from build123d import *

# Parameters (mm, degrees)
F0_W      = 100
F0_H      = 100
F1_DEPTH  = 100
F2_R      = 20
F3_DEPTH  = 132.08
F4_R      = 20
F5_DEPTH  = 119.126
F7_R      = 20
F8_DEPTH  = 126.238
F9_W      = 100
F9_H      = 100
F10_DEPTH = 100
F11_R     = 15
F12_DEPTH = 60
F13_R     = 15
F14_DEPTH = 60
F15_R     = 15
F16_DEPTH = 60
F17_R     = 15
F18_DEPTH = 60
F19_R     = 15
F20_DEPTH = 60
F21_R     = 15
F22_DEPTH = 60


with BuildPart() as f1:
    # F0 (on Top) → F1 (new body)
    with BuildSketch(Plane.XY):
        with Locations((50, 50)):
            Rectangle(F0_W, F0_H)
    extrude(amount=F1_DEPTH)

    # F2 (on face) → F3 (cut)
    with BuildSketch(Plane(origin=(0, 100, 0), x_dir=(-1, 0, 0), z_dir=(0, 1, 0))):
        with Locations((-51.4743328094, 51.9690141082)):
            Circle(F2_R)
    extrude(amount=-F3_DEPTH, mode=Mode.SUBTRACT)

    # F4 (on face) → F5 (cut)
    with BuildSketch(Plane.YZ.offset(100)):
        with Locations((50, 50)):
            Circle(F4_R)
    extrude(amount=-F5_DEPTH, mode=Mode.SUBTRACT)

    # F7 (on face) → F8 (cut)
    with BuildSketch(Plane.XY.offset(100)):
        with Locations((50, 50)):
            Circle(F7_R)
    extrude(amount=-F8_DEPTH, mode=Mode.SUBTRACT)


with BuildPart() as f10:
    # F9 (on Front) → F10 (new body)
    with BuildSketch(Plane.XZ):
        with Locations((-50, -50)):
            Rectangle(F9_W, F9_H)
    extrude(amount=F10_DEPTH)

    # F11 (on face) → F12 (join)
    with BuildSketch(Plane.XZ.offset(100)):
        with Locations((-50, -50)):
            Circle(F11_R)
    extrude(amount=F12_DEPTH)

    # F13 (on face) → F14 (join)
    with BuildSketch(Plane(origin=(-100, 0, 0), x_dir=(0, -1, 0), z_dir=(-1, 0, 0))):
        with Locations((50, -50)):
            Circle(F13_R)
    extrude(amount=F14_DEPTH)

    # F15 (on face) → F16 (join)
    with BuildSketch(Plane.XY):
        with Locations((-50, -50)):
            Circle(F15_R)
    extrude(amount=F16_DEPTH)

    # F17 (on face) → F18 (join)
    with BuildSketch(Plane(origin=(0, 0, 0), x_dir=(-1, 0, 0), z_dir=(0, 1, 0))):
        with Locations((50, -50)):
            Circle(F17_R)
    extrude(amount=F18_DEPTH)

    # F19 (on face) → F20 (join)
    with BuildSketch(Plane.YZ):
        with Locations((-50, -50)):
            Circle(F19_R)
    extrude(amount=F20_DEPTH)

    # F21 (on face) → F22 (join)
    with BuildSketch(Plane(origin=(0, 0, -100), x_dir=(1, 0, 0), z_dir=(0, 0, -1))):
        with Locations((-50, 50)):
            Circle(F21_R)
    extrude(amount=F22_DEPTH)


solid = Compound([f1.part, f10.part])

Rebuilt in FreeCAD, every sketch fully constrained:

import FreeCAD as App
import Part
import Sketcher
from FreeCAD import Vector
Q = App.Units.Quantity


def add_polygon(sketch, points):
    """Adds a closed chain of lines whose ends are joined by coincident constraints."""
    first, n = sketch.GeometryCount, len(points)
    for a, b in zip(points, points[1:] + points[:1]):
        sketch.addGeometry(Part.LineSegment(App.Vector(*a, 0), App.Vector(*b, 0)), False)
    for i in range(n):
        sketch.addConstraint(Sketcher.Constraint("Coincident", first + i, 2, first + (i + 1) % n, 1))

doc = App.newDocument("Part")
body = doc.addObject("PartDesign::Body", "Body")

# Sketch on XY plane
sketch1 = doc.addObject("Sketcher::SketchObject", "Sketch")
body.addObject(sketch1)
sketch1.AttachmentSupport = (doc.XY_Plane, [""])
sketch1.MapMode = "FlatFace"
add_polygon(sketch1, [(0, 100), (0, 0), (100, 0), (100, 100)])  # lines 0-3
sketch1.addConstraint([
    Sketcher.Constraint("Vertical", 0),
    Sketcher.Constraint("Horizontal", 1),
    Sketcher.Constraint("Vertical", 2),
    Sketcher.Constraint("Horizontal", 3),
    Sketcher.Constraint("Coincident", 0, 2, -1, 1),
    Sketcher.Constraint("Equal", 3, 0),
    Sketcher.Constraint("DistanceX", 1, 1, 1, 2, Q("100 mm")),
])
pad1 = doc.addObject("PartDesign::Pad", "Pad")
body.addObject(pad1)
pad1.Profile = sketch1
pad1.Length = 100

# Sketch on XZ plane
sketch2 = doc.addObject("Sketcher::SketchObject", "Sketch001")
body.addObject(sketch2)
sketch2.AttachmentSupport = (doc.XZ_Plane, [""])
sketch2.MapMode = "FlatFace"
sketch2.AttachmentOffset = App.Placement(Vector(0, 0, -100), App.Rotation())
sketch2.addGeometry(Part.Circle(Vector(51, 52, 0), Vector(0, 0, 1), 20), False)
sketch2.addConstraint([
    Sketcher.Constraint("Diameter", 0, Q("40 mm")),
    Sketcher.Constraint("DistanceX", -1, 1, 0, 3, Q("51.474333 mm")),
    Sketcher.Constraint("DistanceY", -1, 1, 0, 3, Q("51.969014 mm")),
])
pocket1 = doc.addObject("PartDesign::Pocket", "Pocket")
body.addObject(pocket1)
pocket1.Profile = sketch2
pocket1.Length = 132.08
pocket1.Reversed = True

# Sketch on YZ plane
sketch3 = doc.addObject("Sketcher::SketchObject", "Sketch002")
body.addObject(sketch3)
sketch3.AttachmentSupport = (doc.YZ_Plane, [""])
sketch3.MapMode = "FlatFace"
sketch3.AttachmentOffset = App.Placement(Vector(0, 0, 100), App.Rotation())
sketch3.addGeometry(Part.Circle(Vector(50, 50, 0), Vector(0, 0, 1), 20), False)
sketch3.addConstraint([
    Sketcher.Constraint("Diameter", 0, Q("40 mm")),
    Sketcher.Constraint("DistanceX", -1, 1, 0, 3, Q("50 mm")),
    Sketcher.Constraint("DistanceY", -1, 1, 0, 3, Q("50 mm")),
])
pocket2 = doc.addObject("PartDesign::Pocket", "Pocket001")
body.addObject(pocket2)
pocket2.Profile = sketch3
pocket2.Length = 119.126

# Sketch on XY plane
sketch4 = doc.addObject("Sketcher::SketchObject", "Sketch003")
body.addObject(sketch4)
sketch4.AttachmentSupport = (doc.XY_Plane, [""])
sketch4.MapMode = "FlatFace"
sketch4.AttachmentOffset = App.Placement(Vector(0, 0, 100), App.Rotation())
sketch4.addGeometry(Part.Circle(Vector(50, 50, 0), Vector(0, 0, 1), 20), False)
sketch4.addConstraint([
    Sketcher.Constraint("Diameter", 0, Q("40 mm")),
    Sketcher.Constraint("DistanceX", -1, 1, 0, 3, Q("50 mm")),
    Sketcher.Constraint("DistanceY", -1, 1, 0, 3, Q("50 mm")),
])
pocket3 = doc.addObject("PartDesign::Pocket", "Pocket002")
body.addObject(pocket3)
pocket3.Profile = sketch4
pocket3.Length = 126.238
body2 = doc.addObject("PartDesign::Body", "Body001")

# Sketch on XZ plane
sketch5 = doc.addObject("Sketcher::SketchObject", "Sketch004")
body2.addObject(sketch5)
sketch5.AttachmentSupport = (doc.getObject("XZ_Plane001"), [""])
sketch5.MapMode = "FlatFace"
add_polygon(sketch5, [(-100, 0), (-100, -100), (0, -100), (0, 0)])  # lines 0-3
sketch5.addConstraint([
    Sketcher.Constraint("Vertical", 0),
    Sketcher.Constraint("Horizontal", 1),
    Sketcher.Constraint("Vertical", 2),
    Sketcher.Constraint("Horizontal", 3),
    Sketcher.Constraint("Coincident", 2, 2, -1, 1),
    Sketcher.Constraint("Equal", 3, 0),
    Sketcher.Constraint("DistanceX", 1, 1, 1, 2, Q("100 mm")),
])
pad2 = doc.addObject("PartDesign::Pad", "Pad001")
body2.addObject(pad2)
pad2.Profile = sketch5
pad2.Length = 100

# Sketch on XZ plane
sketch6 = doc.addObject("Sketcher::SketchObject", "Sketch005")
body2.addObject(sketch6)
sketch6.AttachmentSupport = (doc.getObject("XZ_Plane001"), [""])
sketch6.MapMode = "FlatFace"
sketch6.AttachmentOffset = App.Placement(Vector(0, 0, 100), App.Rotation())
sketch6.addGeometry(Part.Circle(Vector(-50, -50, 0), Vector(0, 0, 1), 15), False)
sketch6.addConstraint([
    Sketcher.Constraint("Diameter", 0, Q("30 mm")),
    Sketcher.Constraint("DistanceX", 0, 3, -1, 1, Q("50 mm")),
    Sketcher.Constraint("DistanceY", 0, 3, -1, 1, Q("50 mm")),
])
pad3 = doc.addObject("PartDesign::Pad", "Pad002")
body2.addObject(pad3)
pad3.Profile = sketch6
pad3.Length = 60

# Sketch on YZ plane
sketch7 = doc.addObject("Sketcher::SketchObject", "Sketch006")
body2.addObject(sketch7)
sketch7.AttachmentSupport = (doc.getObject("YZ_Plane001"), [""])
sketch7.MapMode = "FlatFace"
sketch7.AttachmentOffset = App.Placement(Vector(0, 0, -100), App.Rotation())
sketch7.addGeometry(Part.Circle(Vector(-50, -50, 0), Vector(0, 0, 1), 15), False)
sketch7.addConstraint([
    Sketcher.Constraint("Diameter", 0, Q("30 mm")),
    Sketcher.Constraint("DistanceX", 0, 3, -1, 1, Q("50 mm")),
    Sketcher.Constraint("DistanceY", 0, 3, -1, 1, Q("50 mm")),
])
pad4 = doc.addObject("PartDesign::Pad", "Pad003")
body2.addObject(pad4)
pad4.Profile = sketch7
pad4.Length = 60
pad4.Reversed = True

# Sketch on XY plane
sketch8 = doc.addObject("Sketcher::SketchObject", "Sketch007")
body2.addObject(sketch8)
sketch8.AttachmentSupport = (doc.getObject("XY_Plane001"), [""])
sketch8.MapMode = "FlatFace"
sketch8.addGeometry(Part.Circle(Vector(-50, -50, 0), Vector(0, 0, 1), 15), False)
sketch8.addConstraint([
    Sketcher.Constraint("Diameter", 0, Q("30 mm")),
    Sketcher.Constraint("DistanceX", 0, 3, -1, 1, Q("50 mm")),
    Sketcher.Constraint("DistanceY", 0, 3, -1, 1, Q("50 mm")),
])
pad5 = doc.addObject("PartDesign::Pad", "Pad004")
body2.addObject(pad5)
pad5.Profile = sketch8
pad5.Length = 60

# Sketch on XZ plane
sketch9 = doc.addObject("Sketcher::SketchObject", "Sketch008")
body2.addObject(sketch9)
sketch9.AttachmentSupport = (doc.getObject("XZ_Plane001"), [""])
sketch9.MapMode = "FlatFace"
sketch9.addGeometry(Part.Circle(Vector(-50, -50, 0), Vector(0, 0, 1), 15), False)
sketch9.addConstraint([
    Sketcher.Constraint("Diameter", 0, Q("30 mm")),
    Sketcher.Constraint("DistanceX", 0, 3, -1, 1, Q("50 mm")),
    Sketcher.Constraint("DistanceY", 0, 3, -1, 1, Q("50 mm")),
])
pad6 = doc.addObject("PartDesign::Pad", "Pad005")
body2.addObject(pad6)
pad6.Profile = sketch9
pad6.Length = 60
pad6.Reversed = True

# Sketch on YZ plane
sketch10 = doc.addObject("Sketcher::SketchObject", "Sketch009")
body2.addObject(sketch10)
sketch10.AttachmentSupport = (doc.getObject("YZ_Plane001"), [""])
sketch10.MapMode = "FlatFace"
sketch10.addGeometry(Part.Circle(Vector(-50, -50, 0), Vector(0, 0, 1), 15), False)
sketch10.addConstraint([
    Sketcher.Constraint("Diameter", 0, Q("30 mm")),
    Sketcher.Constraint("DistanceX", 0, 3, -1, 1, Q("50 mm")),
    Sketcher.Constraint("DistanceY", 0, 3, -1, 1, Q("50 mm")),
])
pad7 = doc.addObject("PartDesign::Pad", "Pad006")
body2.addObject(pad7)
pad7.Profile = sketch10
pad7.Length = 60

# Sketch on XY plane
sketch11 = doc.addObject("Sketcher::SketchObject", "Sketch010")
body2.addObject(sketch11)
sketch11.AttachmentSupport = (doc.getObject("XY_Plane001"), [""])
sketch11.MapMode = "FlatFace"
sketch11.AttachmentOffset = App.Placement(Vector(0, 0, -100), App.Rotation())
sketch11.addGeometry(Part.Circle(Vector(-50, -50, 0), Vector(0, 0, 1), 15), False)
sketch11.addConstraint([
    Sketcher.Constraint("Diameter", 0, Q("30 mm")),
    Sketcher.Constraint("DistanceX", 0, 3, -1, 1, Q("50 mm")),
    Sketcher.Constraint("DistanceY", 0, 3, -1, 1, Q("50 mm")),
])
pad8 = doc.addObject("PartDesign::Pad", "Pad007")
body2.addObject(pad8)
pad8.Profile = sketch11
pad8.Length = 60
pad8.Reversed = True

doc.recompute()
